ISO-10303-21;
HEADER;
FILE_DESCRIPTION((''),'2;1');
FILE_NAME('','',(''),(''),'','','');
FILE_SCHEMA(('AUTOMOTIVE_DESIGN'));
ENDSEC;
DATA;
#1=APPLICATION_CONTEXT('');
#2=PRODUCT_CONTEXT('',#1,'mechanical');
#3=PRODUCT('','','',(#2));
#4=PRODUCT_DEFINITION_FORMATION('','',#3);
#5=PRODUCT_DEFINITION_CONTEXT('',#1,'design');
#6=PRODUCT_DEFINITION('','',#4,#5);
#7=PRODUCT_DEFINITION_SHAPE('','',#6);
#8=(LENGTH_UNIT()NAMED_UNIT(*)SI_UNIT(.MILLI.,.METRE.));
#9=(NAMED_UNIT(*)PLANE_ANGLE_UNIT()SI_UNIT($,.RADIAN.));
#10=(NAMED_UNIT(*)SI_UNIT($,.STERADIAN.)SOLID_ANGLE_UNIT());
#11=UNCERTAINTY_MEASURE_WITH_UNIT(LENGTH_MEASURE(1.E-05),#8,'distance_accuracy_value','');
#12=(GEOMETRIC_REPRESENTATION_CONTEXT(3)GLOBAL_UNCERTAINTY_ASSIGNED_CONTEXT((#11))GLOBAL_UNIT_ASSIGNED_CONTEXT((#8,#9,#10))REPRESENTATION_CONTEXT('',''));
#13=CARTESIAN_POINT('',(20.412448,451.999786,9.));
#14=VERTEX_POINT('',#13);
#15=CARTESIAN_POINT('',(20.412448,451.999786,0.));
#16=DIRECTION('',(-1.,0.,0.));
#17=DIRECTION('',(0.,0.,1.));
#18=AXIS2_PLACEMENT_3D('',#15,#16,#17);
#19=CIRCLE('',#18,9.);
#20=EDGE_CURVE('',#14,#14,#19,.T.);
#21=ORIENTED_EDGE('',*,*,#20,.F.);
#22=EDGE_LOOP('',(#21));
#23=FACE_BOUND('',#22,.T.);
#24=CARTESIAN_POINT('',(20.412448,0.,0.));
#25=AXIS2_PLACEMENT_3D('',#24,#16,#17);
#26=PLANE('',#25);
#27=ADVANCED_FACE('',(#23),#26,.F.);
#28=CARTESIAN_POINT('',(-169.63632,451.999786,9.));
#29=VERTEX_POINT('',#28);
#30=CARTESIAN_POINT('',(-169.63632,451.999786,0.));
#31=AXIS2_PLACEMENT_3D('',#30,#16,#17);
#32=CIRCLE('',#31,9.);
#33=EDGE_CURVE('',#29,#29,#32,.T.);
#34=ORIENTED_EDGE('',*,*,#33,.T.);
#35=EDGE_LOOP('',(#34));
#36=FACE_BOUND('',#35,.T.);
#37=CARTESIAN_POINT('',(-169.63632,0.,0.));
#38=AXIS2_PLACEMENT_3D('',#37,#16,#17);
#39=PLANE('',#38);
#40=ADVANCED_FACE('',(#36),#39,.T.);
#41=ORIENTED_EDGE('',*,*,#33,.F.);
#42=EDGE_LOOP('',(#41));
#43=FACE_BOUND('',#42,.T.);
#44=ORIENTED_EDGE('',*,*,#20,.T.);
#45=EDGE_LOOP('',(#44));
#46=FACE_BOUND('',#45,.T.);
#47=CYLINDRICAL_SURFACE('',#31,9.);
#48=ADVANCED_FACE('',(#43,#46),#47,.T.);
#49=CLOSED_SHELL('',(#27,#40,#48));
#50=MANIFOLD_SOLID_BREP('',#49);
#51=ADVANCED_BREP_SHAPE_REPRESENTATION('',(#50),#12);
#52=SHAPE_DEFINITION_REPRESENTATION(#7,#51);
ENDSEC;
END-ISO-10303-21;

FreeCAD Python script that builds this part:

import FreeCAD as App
import Part
import Sketcher

V = App.Vector
Q = App.Units.Quantity

doc = App.newDocument("Part")
params = doc.addObject("Spreadsheet::Sheet", "Params")
for row, (alias, value) in enumerate([
    ("sketch1_height", "9 mm"),
    ("revolution_angle", "360 deg"),
], start=1):
    params.set(f"A{row}", alias)
    params.set(f"B{row}", "=" + value)
    params.setAlias(f"B{row}", alias)

body = doc.addObject("PartDesign::Body", "Body")

sketch1 = body.newObject("Sketcher::SketchObject", "Sketch")
sketch1.AttachmentSupport = (doc.getObject("XY_Plane"), [""])
sketch1.MapMode = "FlatFace"
sketch1.addGeometry([
    Part.LineSegment(V(-169.63632, 460.999786, 0), V(-169.63632, 451.999786, 0)),
    Part.LineSegment(V(-169.63632, 451.999786, 0), V(20.412448, 451.999786, 0)),
    Part.LineSegment(V(20.412448, 451.999786, 0), V(20.412448, 460.999786, 0)),
    Part.LineSegment(V(20.412448, 460.999786, 0), V(-169.63632, 460.999786, 0)),
], False)
sketch1.addGeometry(Part.LineSegment(V(-169.63632, 451.999786, 0), V(20.412448, 451.999786, 0)), True)
sketch1.addConstraint([
    Sketcher.Constraint("Coincident", 0, 2, 1, 1),
    Sketcher.Constraint("Coincident", 1, 2, 2, 1),
    Sketcher.Constraint("Coincident", 2, 2, 3, 1),
    Sketcher.Constraint("Coincident", 3, 2, 0, 1),
    Sketcher.Constraint("Vertical", 0),
    Sketcher.Constraint("Horizontal", 1),
    Sketcher.Constraint("Vertical", 2),
    Sketcher.Constraint("Horizontal", 3),
    Sketcher.Constraint("Horizontal", 4),
    Sketcher.Constraint("Coincident", 4, 1, 0, 2),
    Sketcher.Constraint("Vertical", 2, 2, 4, 2),
    Sketcher.Constraint("DistanceY", 0, 2, 0, 1, Q("9 mm")),
    Sketcher.Constraint("DistanceX", 1, 1, 1, 2, Q("190.048767 mm")),
    Sketcher.Constraint("DistanceX", 0, 2, -1, 1, Q("169.63632 mm")),
    Sketcher.Constraint("DistanceY", -1, 1, 0, 2, Q("451.999786 mm")),
])
sketch1.setExpression("Constraints[11]", "Params.sketch1_height")
revolution = body.newObject("PartDesign::Revolution", "Revolution")
revolution.Profile = sketch1
revolution.ReferenceAxis = (sketch1, ["Axis0"])
revolution.setExpression("Angle", "Params.revolution_angle")

doc.recompute()
